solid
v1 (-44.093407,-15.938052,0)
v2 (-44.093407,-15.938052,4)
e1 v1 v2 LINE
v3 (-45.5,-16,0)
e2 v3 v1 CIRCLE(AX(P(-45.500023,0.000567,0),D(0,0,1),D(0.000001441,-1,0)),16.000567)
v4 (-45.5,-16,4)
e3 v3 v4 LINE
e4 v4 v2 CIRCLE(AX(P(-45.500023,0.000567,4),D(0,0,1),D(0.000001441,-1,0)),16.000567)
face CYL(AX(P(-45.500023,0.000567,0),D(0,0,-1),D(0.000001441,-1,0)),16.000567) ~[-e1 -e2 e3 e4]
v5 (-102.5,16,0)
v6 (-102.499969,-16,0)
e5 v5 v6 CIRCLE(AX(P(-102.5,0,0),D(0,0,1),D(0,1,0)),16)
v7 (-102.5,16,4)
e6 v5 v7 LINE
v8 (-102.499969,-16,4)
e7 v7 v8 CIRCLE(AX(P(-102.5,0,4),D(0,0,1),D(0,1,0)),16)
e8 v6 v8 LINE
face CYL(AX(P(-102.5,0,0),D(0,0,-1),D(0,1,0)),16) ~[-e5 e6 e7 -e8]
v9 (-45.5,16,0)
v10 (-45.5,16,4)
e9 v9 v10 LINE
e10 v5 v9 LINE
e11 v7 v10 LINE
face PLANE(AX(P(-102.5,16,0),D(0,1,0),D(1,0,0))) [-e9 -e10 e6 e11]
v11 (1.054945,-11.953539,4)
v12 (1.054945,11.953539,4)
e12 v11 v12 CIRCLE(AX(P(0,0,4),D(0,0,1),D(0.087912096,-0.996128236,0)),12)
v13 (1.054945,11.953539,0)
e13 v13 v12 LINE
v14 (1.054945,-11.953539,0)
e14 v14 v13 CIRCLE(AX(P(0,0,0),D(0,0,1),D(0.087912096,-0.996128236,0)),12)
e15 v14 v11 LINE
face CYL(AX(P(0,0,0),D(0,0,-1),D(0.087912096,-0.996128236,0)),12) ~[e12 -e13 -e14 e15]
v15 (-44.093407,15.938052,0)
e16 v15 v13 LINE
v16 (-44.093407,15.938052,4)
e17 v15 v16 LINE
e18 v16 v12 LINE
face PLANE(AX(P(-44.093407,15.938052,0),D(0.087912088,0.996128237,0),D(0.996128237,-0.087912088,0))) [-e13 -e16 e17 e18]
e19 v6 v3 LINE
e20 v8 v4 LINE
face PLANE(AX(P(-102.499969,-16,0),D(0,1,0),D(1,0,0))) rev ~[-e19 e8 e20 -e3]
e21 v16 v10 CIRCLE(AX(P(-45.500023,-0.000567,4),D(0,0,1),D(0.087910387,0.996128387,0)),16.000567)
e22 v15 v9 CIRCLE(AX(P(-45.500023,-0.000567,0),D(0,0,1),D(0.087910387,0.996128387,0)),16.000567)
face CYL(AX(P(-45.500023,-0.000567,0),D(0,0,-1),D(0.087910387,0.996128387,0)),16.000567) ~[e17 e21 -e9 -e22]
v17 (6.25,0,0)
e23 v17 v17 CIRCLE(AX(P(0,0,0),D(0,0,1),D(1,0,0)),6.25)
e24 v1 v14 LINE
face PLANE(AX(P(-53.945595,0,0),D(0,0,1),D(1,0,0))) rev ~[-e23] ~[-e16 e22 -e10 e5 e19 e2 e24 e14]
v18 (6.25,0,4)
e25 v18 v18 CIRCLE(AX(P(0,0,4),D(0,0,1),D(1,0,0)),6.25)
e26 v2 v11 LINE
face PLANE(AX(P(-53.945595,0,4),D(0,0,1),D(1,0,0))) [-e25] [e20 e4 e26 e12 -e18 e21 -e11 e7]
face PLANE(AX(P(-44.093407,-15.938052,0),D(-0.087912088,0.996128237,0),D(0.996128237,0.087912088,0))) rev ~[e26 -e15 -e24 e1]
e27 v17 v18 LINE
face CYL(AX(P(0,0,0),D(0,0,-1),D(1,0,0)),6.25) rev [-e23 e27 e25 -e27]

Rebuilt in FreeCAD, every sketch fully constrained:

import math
import FreeCAD as App
import Part
import Sketcher
from FreeCAD import Vector

doc = App.newDocument("Part")
body = doc.addObject("PartDesign::Body", "Body")

# Sketch on XY plane
sketch1 = body.newObject("Sketcher::SketchObject", "Sketch")
sketch1.AttachmentSupport = (doc.getObject("XY_Plane"), [""])
sketch1.MapMode = "FlatFace"
sketch1.addGeometry(Part.ArcOfCircle(Part.Circle(Vector(0, 0, 0), Vector(0, 0, 1), 12), math.radians(-84.956497), math.radians(84.956497)), False)
sketch1.addGeometry(Part.LineSegment(Vector(1.054945, 11.953539, 0), Vector(-44.093407, 15.938052, 0)), False)
sketch1.addGeometry(Part.ArcOfCircle(Part.Circle(Vector(-45.500023, -0.000567, 0), Vector(0, 0, 1), 16.000567), math.radians(84.956595), math.radians(89.999917)), False)
sketch1.addGeometry(Part.LineSegment(Vector(-45.5, 16, 0), Vector(-102.5, 16, 0)), False)
sketch1.addGeometry(Part.ArcOfCircle(Part.Circle(Vector(-102.5, 0, 0), Vector(0, 0, 1), 16), math.radians(90), math.radians(270.000111)), False)
sketch1.addGeometry(Part.LineSegment(Vector(-102.499969, -16, 0), Vector(-45.5, -16, 0)), False)
sketch1.addGeometry(Part.ArcOfCircle(Part.Circle(Vector(-45.500023, 0.000567, 0), Vector(0, 0, 1), 16.000567), math.radians(-89.999917), math.radians(-84.956595)), False)
sketch1.addGeometry(Part.LineSegment(Vector(-44.093407, -15.938052, 0), Vector(1.054945, -11.953539, 0)), False)
sketch1.addGeometry(Part.Circle(Vector(0, 0, 0), Vector(0, 0, 1), 6.25), False)
sketch1.addConstraint(Sketcher.Constraint("Coincident", 0, 2, 1, 1))
sketch1.addConstraint(Sketcher.Constraint("Coincident", 1, 2, 2, 1))
sketch1.addConstraint(Sketcher.Constraint("Coincident", 2, 2, 3, 1))
sketch1.addConstraint(Sketcher.Constraint("Coincident", 3, 2, 4, 1))
sketch1.addConstraint(Sketcher.Constraint("Coincident", 4, 2, 5, 1))
sketch1.addConstraint(Sketcher.Constraint("Coincident", 5, 2, 6, 1))
sketch1.addConstraint(Sketcher.Constraint("Coincident", 6, 2, 7, 1))
sketch1.addConstraint(Sketcher.Constraint("Coincident", 7, 2, 0, 1))
sketch1.addConstraint(Sketcher.Constraint("Horizontal", 3))
sketch1.addConstraint(Sketcher.Constraint("Horizontal", 5))
sketch1.addConstraint(Sketcher.Constraint("Coincident", 0, 3, -1, 1))
sketch1.addConstraint(Sketcher.Constraint("Coincident", 8, 3, -1, 1))
sketch1.addConstraint(Sketcher.Constraint("PointOnObject", 4, 3, -1))
sketch1.addConstraint(Sketcher.Constraint("Radius", 0, 12.0))
sketch1.addConstraint(Sketcher.Constraint("Radius", 4, 16.0))
sketch1.addConstraint(Sketcher.Constraint("Diameter", 8, 12.5))
sketch1.addConstraint(Sketcher.Constraint("DistanceX", 3, 2, 3, 1, 57.0))
sketch1.addConstraint(Sketcher.Constraint("DistanceX", 4, 3, -1, 1, 102.5))
sketch1.addConstraint(Sketcher.Constraint("DistanceX", 2, 2, -1, 1, 45.5))
sketch1.addConstraint(Sketcher.Constraint("DistanceX", 5, 2, -1, 1, 45.5))
sketch1.addConstraint(Sketcher.Constraint("Radius", 2, 16.000567))
sketch1.addConstraint(Sketcher.Constraint("Radius", 6, 16.000567))
sketch1.addConstraint(Sketcher.Constraint("DistanceX", 5, 1, 5, 2, 56.999969))
sketch1.addConstraint(Sketcher.Constraint("DistanceY", -1, 1, 0, 2, 11.953539))
sketch1.addConstraint(Sketcher.Constraint("DistanceY", 6, 2, -1, 1, 15.938052))
sketch1.addConstraint(Sketcher.Constraint("DistanceY", 7, 2, -1, 1, 11.953539))
sketch1.addConstraint(Sketcher.Constraint("DistanceX", 6, 3, 0, 2, 46.554968))
sketch1.addConstraint(Sketcher.Constraint("DistanceX", 2, 3, 0, 2, 46.554968))
sketch1.addConstraint(Sketcher.Constraint("DistanceY", 2, 3, 1, 2, 15.938619))
pad1 = body.newObject("PartDesign::Pad", "Pad")
pad1.Profile = sketch1
pad1.Length = 4

doc.recompute()
